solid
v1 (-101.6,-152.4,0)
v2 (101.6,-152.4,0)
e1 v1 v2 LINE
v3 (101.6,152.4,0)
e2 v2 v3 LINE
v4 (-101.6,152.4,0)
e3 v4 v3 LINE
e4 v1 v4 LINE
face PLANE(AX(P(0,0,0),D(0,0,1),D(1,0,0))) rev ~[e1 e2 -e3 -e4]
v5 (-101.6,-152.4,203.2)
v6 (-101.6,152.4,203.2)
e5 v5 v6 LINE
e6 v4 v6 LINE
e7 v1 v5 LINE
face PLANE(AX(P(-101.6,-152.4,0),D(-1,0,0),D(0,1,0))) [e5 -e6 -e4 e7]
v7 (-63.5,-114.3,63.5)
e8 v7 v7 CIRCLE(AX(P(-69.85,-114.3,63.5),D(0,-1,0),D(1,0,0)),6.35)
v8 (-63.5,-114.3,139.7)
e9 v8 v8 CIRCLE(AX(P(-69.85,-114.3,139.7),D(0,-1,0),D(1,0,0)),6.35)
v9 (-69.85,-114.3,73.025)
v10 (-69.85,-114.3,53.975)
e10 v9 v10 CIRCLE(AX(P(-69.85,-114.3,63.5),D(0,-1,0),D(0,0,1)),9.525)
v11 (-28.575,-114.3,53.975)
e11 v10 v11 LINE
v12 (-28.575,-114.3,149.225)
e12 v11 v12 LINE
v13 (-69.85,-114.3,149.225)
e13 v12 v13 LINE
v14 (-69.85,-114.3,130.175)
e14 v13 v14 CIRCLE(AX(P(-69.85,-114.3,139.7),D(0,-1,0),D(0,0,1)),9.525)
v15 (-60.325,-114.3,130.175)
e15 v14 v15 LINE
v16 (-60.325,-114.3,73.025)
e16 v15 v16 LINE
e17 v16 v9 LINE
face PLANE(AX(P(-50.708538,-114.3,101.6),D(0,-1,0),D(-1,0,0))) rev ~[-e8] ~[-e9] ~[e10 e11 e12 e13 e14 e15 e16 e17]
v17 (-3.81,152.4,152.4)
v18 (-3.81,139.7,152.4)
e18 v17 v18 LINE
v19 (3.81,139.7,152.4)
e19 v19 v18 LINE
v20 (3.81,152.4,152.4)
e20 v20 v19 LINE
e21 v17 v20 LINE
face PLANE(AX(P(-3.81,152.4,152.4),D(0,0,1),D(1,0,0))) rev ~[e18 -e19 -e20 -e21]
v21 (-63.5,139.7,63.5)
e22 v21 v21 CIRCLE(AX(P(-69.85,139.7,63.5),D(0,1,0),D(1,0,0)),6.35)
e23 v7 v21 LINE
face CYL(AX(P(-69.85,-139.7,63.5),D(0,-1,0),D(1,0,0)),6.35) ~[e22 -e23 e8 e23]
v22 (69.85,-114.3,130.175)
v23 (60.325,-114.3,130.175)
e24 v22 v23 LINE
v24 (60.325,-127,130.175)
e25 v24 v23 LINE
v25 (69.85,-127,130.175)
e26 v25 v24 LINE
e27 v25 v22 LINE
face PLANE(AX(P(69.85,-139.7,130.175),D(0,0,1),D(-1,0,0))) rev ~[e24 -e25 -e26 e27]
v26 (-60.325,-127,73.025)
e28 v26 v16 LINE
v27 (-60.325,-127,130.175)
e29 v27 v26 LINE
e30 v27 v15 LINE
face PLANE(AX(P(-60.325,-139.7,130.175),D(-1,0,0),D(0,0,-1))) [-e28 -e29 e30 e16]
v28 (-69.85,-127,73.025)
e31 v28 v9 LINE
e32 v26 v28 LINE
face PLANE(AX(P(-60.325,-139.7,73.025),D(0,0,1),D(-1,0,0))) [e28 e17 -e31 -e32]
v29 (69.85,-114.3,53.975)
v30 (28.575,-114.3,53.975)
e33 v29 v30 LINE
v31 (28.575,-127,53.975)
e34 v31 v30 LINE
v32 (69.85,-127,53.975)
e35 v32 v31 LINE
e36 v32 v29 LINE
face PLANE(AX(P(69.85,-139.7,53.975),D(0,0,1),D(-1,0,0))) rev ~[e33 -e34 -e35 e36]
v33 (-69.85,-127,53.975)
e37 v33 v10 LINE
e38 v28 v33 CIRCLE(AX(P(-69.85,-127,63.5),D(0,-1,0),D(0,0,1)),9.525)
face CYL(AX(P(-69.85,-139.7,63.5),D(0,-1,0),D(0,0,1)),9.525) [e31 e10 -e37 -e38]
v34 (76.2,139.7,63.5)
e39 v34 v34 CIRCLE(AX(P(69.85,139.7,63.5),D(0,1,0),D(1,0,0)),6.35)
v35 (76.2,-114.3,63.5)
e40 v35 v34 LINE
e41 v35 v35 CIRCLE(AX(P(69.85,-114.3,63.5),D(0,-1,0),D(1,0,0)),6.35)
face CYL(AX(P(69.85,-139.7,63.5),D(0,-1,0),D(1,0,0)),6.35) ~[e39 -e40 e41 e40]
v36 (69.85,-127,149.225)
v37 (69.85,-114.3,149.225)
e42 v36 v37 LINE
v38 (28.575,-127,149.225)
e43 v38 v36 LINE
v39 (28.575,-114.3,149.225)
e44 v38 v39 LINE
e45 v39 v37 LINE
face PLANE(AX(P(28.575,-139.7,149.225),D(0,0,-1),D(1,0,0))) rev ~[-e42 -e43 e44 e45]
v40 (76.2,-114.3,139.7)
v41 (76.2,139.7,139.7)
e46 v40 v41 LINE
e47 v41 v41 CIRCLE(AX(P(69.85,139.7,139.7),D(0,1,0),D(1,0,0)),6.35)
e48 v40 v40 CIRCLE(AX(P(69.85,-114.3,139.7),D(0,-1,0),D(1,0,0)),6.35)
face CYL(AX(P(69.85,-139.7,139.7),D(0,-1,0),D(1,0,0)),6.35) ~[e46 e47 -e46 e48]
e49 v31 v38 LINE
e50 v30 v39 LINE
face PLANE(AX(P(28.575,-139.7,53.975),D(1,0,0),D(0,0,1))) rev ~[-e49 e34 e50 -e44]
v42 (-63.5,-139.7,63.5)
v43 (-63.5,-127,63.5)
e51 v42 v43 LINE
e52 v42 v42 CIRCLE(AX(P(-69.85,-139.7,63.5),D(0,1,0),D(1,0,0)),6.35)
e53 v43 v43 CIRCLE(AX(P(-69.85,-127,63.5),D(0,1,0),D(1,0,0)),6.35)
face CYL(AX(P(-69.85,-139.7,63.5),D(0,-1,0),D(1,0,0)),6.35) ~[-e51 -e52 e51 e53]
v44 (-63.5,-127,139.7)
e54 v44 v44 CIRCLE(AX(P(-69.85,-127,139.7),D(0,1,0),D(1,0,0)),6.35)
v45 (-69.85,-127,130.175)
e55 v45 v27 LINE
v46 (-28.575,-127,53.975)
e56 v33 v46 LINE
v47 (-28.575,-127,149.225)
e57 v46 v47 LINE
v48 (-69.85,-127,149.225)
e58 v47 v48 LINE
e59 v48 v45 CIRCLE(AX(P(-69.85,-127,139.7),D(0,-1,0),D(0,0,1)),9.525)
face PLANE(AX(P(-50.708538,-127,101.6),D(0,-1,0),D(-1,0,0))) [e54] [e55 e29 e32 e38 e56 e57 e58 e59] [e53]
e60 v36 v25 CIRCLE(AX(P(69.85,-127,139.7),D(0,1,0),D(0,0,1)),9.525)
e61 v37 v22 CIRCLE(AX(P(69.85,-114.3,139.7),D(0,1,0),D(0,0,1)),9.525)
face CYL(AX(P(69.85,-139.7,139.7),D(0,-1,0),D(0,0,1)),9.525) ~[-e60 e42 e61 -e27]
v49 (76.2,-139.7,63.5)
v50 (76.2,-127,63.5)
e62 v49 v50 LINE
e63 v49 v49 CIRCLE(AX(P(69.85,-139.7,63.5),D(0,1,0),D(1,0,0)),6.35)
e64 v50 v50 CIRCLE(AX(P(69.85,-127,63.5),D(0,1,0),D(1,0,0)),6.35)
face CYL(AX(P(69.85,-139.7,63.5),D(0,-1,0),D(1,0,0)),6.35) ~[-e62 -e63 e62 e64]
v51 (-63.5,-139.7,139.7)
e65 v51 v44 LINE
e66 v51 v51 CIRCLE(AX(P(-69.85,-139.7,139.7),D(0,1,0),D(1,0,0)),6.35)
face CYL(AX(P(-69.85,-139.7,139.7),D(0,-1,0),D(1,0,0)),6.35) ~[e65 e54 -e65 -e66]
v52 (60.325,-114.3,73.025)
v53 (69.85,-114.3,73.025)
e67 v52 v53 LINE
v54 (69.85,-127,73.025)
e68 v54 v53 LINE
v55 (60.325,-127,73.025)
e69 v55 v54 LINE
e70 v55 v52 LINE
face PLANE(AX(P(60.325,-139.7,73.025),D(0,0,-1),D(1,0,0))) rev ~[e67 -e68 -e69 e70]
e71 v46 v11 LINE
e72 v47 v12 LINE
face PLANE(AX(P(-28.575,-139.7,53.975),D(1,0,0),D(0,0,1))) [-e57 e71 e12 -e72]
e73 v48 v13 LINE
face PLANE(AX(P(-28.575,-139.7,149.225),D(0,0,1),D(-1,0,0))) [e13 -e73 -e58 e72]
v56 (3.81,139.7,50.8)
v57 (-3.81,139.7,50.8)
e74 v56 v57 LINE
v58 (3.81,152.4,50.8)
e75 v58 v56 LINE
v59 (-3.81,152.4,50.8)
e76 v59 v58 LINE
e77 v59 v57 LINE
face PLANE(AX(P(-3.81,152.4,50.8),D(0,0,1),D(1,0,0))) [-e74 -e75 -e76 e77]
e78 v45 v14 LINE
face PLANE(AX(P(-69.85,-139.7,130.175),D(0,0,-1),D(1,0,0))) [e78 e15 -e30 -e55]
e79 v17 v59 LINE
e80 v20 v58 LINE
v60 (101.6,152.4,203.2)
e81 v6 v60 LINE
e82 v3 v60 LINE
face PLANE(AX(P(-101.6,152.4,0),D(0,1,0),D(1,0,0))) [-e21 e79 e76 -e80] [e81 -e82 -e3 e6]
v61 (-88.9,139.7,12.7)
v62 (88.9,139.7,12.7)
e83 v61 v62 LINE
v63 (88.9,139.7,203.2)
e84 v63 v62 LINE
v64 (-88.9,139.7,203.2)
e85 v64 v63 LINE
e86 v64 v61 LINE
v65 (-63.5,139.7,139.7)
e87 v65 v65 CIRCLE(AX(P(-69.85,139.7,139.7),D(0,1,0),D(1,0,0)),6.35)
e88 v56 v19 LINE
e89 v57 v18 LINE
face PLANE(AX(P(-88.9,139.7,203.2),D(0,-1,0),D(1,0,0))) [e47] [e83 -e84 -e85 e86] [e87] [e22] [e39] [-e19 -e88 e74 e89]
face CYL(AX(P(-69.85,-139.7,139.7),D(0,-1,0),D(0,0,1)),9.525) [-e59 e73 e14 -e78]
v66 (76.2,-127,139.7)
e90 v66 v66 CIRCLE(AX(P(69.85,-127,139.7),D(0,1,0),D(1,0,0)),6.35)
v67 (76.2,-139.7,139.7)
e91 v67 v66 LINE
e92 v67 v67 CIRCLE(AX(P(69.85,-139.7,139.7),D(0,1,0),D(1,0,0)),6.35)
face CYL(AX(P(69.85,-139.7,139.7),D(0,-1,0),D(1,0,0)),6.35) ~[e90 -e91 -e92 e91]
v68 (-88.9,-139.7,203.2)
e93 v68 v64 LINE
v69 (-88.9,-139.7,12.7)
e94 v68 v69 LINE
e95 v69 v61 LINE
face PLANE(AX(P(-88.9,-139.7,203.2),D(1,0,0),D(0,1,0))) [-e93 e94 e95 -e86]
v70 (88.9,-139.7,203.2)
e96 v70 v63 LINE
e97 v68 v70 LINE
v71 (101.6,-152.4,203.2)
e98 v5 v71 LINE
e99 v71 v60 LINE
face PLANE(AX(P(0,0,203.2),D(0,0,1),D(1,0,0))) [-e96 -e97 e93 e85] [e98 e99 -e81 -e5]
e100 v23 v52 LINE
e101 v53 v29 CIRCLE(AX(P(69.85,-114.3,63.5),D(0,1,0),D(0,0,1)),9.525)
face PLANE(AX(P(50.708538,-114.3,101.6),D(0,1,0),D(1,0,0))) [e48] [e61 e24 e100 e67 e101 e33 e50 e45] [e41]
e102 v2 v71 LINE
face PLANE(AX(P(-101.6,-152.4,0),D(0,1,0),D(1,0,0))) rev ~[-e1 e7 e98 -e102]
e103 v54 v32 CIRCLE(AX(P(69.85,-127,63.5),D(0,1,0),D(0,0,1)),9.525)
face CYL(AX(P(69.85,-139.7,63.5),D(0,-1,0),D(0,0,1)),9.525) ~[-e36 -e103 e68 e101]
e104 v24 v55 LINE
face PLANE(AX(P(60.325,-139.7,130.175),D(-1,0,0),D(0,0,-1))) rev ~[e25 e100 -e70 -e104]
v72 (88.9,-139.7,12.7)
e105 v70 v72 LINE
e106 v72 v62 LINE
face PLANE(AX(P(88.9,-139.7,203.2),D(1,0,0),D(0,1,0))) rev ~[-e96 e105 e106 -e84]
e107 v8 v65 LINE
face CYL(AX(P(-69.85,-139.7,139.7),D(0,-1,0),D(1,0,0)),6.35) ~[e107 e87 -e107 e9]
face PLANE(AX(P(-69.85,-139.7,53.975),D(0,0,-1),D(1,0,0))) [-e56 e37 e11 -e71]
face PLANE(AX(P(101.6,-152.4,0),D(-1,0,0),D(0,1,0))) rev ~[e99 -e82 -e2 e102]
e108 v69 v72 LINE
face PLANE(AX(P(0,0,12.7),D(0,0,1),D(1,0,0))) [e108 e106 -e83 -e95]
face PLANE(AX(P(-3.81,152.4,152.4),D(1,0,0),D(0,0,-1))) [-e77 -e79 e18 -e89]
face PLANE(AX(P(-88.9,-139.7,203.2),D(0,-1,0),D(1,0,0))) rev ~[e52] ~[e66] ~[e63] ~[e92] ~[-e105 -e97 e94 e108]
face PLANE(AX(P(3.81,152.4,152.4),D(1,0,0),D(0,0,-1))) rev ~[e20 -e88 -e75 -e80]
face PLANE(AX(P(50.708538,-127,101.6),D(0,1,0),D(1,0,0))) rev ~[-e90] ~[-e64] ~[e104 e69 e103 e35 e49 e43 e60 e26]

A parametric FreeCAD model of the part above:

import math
import FreeCAD as App
import Part
import Sketcher
from FreeCAD import Vector
Q = App.Units.Quantity


def add_polygon(sketch, points):
    """Adds a closed chain of lines whose ends are joined by coincident constraints."""
    first, n = sketch.GeometryCount, len(points)
    for a, b in zip(points, points[1:] + points[:1]):
        sketch.addGeometry(Part.LineSegment(App.Vector(*a, 0), App.Vector(*b, 0)), False)
    for i in range(n):
        sketch.addConstraint(Sketcher.Constraint("Coincident", first + i, 2, first + (i + 1) % n, 1))

doc = App.newDocument("Part")
body = doc.addObject("PartDesign::Body", "Body")

# Sketch on XY plane
sketch1 = body.newObject("Sketcher::SketchObject", "Sketch")
sketch1.AttachmentSupport = (doc.getObject("XY_Plane"), [""])
sketch1.MapMode = "FlatFace"
add_polygon(sketch1, [(-102, 152), (-102, -152), (102, -152), (102, 152)])  # lines 0-3
sketch1.addConstraint([
    Sketcher.Constraint("Vertical", 0),
    Sketcher.Constraint("Horizontal", 1),
    Sketcher.Constraint("Vertical", 2),
    Sketcher.Constraint("Horizontal", 3),
    Sketcher.Constraint("Symmetric", 0, 2, 2, 2, -1, 1),
    Sketcher.Constraint("DistanceX", 1, 1, 1, 2, Q("8 in")),
    Sketcher.Constraint("DistanceY", 0, 2, 0, 1, Q("12 in")),
])
pad1 = body.newObject("PartDesign::Pad", "Pad")
pad1.Profile = sketch1
pad1.Length = Q("8 in")

# Sketch on XY plane
sketch2 = body.newObject("Sketcher::SketchObject", "Sketch001")
sketch2.AttachmentSupport = (doc.getObject("XY_Plane"), [""])
sketch2.MapMode = "FlatFace"
sketch2.AttachmentOffset = App.Placement(Vector(0, 0, 8 * 25.4), App.Rotation())
add_polygon(sketch2, [(-89, 140), (-89, -140), (89, -140), (89, 140)])  # lines 0-3
sketch2.addConstraint([
    Sketcher.Constraint("Vertical", 0),
    Sketcher.Constraint("Horizontal", 1),
    Sketcher.Constraint("Vertical", 2),
    Sketcher.Constraint("Horizontal", 3),
    Sketcher.Constraint("Symmetric", 0, 2, 2, 2, -1, 1),
    Sketcher.Constraint("DistanceX", 1, 1, 1, 2, Q("7 in")),
    Sketcher.Constraint("DistanceY", 0, 2, 0, 1, Q("11 in")),
])
pocket1 = body.newObject("PartDesign::Pocket", "Pocket")
pocket1.Profile = sketch2
pocket1.Length = Q("7.5 in")

# Sketch on XZ plane
sketch3 = body.newObject("Sketcher::SketchObject", "Sketch002")
sketch3.AttachmentSupport = (doc.getObject("XZ_Plane"), [""])
sketch3.MapMode = "FlatFace"
sketch3.AttachmentOffset = App.Placement(Vector(0, 0, -6 * 25.4), App.Rotation())
add_polygon(sketch3, [(-4, 51), (-4, 152), (4, 152), (4, 51)])  # lines 0-3
sketch3.addConstraint([
    Sketcher.Constraint("Vertical", 0),
    Sketcher.Constraint("Horizontal", 1),
    Sketcher.Constraint("Vertical", 2),
    Sketcher.Constraint("Horizontal", 3),
    Sketcher.Constraint("DistanceY", 0, 1, 0, 2, Q("4 in")),
    Sketcher.Constraint("DistanceX", 1, 1, 1, 2, Q("0.3 in")),
    Sketcher.Constraint("DistanceY", -1, 1, 0, 2, Q("6 in")),
    Sketcher.Constraint("DistanceX", 0, 2, -1, 1, Q("0.15 in")),
])
pocket2 = body.newObject("PartDesign::Pocket", "Pocket001")
pocket2.Profile = sketch3
pocket2.Length = Q("7.5 in")
pocket2.Reversed = True

# Sketch on XZ plane
sketch4 = body.newObject("Sketcher::SketchObject", "Sketch003")
sketch4.AttachmentSupport = (doc.getObject("XZ_Plane"), [""])
sketch4.MapMode = "FlatFace"
sketch4.AttachmentOffset = App.Placement(Vector(0, 0, 5.5 * 25.4), App.Rotation())
sketch4.addGeometry([
    Part.Circle(Vector(-70, 64, 0), Vector(0, 0, 1), 6),
    Part.Circle(Vector(70, 64, 0), Vector(0, 0, 1), 6),
    Part.Circle(Vector(70, 140, 0), Vector(0, 0, 1), 6),
    Part.Circle(Vector(-70, 140, 0), Vector(0, 0, 1), 6),
], False)
sketch4.addConstraint([
    Sketcher.Constraint("Equal", 0, 1),
    Sketcher.Constraint("Equal", 1, 2),
    Sketcher.Constraint("Equal", 2, 3),
    Sketcher.Constraint("Symmetric", 0, 3, 1, 3, -2),
    Sketcher.Constraint("Symmetric", 2, 3, 3, 3, -2),
    Sketcher.Constraint("Vertical", 1, 3, 2, 3),
    Sketcher.Constraint("Diameter", 0, Q("0.5 in")),
    Sketcher.Constraint("DistanceY", 1, 3, 2, 3, Q("3 in")),
    Sketcher.Constraint("DistanceY", -1, 1, 0, 3, Q("2.5 in")),
    Sketcher.Constraint("DistanceX", 0, 3, 1, 3, Q("5.5 in")),
])
pad2 = body.newObject("PartDesign::Pad", "Pad001")
pad2.Profile = sketch4
pad2.Length = Q("11 in")
pad2.Reversed = True

# Sketch on XZ plane
sketch5 = body.newObject("Sketcher::SketchObject", "Sketch004")
sketch5.AttachmentSupport = (doc.getObject("XZ_Plane"), [""])
sketch5.MapMode = "FlatFace"
sketch5.AttachmentOffset = App.Placement(Vector(0, 0, 5.5 * 25.4), App.Rotation())
sketch5.addGeometry([
    Part.LineSegment(Vector(-29, 54, 0), Vector(-70, 54, 0)),  # 0
    Part.ArcOfCircle(Part.Circle(Vector(-70, 64, 0), Vector(0, 0, 1), 10), math.radians(90), math.radians(270)),  # 1
    Part.LineSegment(Vector(-70, 73, 0), Vector(-60, 73, 0)),  # 2
    Part.LineSegment(Vector(-60, 73, 0), Vector(-60, 130, 0)),  # 3
    Part.LineSegment(Vector(-60, 130, 0), Vector(-70, 130, 0)),  # 4
    Part.ArcOfCircle(Part.Circle(Vector(-70, 140, 0), Vector(0, 0, 1), 10), math.radians(90), math.radians(270)),  # 5
    Part.LineSegment(Vector(-70, 149, 0), Vector(-29, 149, 0)),  # 6
    Part.LineSegment(Vector(-29, 149, 0), Vector(-29, 54, 0)),  # 7
    Part.LineSegment(Vector(29, 54, 0), Vector(29, 149, 0)),  # 8
    Part.LineSegment(Vector(29, 149, 0), Vector(70, 149, 0)),  # 9
    Part.ArcOfCircle(Part.Circle(Vector(70, 140, 0), Vector(0, 0, 1), 10), math.radians(-90), math.radians(90)),  # 10
    Part.LineSegment(Vector(70, 130, 0), Vector(60, 130, 0)),  # 11
    Part.LineSegment(Vector(60, 130, 0), Vector(60, 73, 0)),  # 12
    Part.LineSegment(Vector(60, 73, 0), Vector(70, 73, 0)),  # 13
    Part.ArcOfCircle(Part.Circle(Vector(70, 64, 0), Vector(0, 0, 1), 10), math.radians(-90), math.radians(90)),  # 14
    Part.LineSegment(Vector(70, 54, 0), Vector(29, 54, 0)),  # 15
], False)
sketch5.addConstraint([
    Sketcher.Constraint("Tangent", 0, 2, 1, 2),
    Sketcher.Constraint("Tangent", 1, 1, 2, 1),
    Sketcher.Constraint("Coincident", 2, 2, 3, 1),
    Sketcher.Constraint("Coincident", 3, 2, 4, 1),
    Sketcher.Constraint("Tangent", 4, 2, 5, 2),
    Sketcher.Constraint("Tangent", 5, 1, 6, 1),
    Sketcher.Constraint("Coincident", 6, 2, 7, 1),
    Sketcher.Constraint("Coincident", 7, 2, 0, 1),
    Sketcher.Constraint("Coincident", 8, 2, 9, 1),
    Sketcher.Constraint("Tangent", 9, 2, 10, 2),
    Sketcher.Constraint("Tangent", 10, 1, 11, 1),
    Sketcher.Constraint("Coincident", 11, 2, 12, 1),
    Sketcher.Constraint("Coincident", 12, 2, 13, 1),
    Sketcher.Constraint("Tangent", 13, 2, 14, 2),
    Sketcher.Constraint("Tangent", 14, 1, 15, 1),
    Sketcher.Constraint("Coincident", 15, 2, 8, 1),
    Sketcher.Constraint("Horizontal", 0),
    Sketcher.Constraint("Horizontal", 2),
    Sketcher.Constraint("Vertical", 3),
    Sketcher.Constraint("Horizontal", 4),
    Sketcher.Constraint("Horizontal", 6),
    Sketcher.Constraint("Vertical", 7),
    Sketcher.Constraint("Vertical", 8),
    Sketcher.Constraint("Horizontal", 9),
    Sketcher.Constraint("Horizontal", 11),
    Sketcher.Constraint("Vertical", 12),
    Sketcher.Constraint("Horizontal", 13),
    Sketcher.Constraint("Horizontal", 15),
    Sketcher.Constraint("Equal", 1, 5),
    Sketcher.Constraint("Equal", 5, 10),
    Sketcher.Constraint("Equal", 10, 14),
    Sketcher.Constraint("Symmetric", 5, 3, 10, 3, -2),
    Sketcher.Constraint("Symmetric", 1, 3, 14, 3, -2),
    Sketcher.Constraint("Vertical", 1, 3, 5, 3),
    Sketcher.Constraint("Equal", 6, 9),
    Sketcher.Constraint("Equal", 4, 11),
    Sketcher.Constraint("Radius", 1, Q("0.375 in")),
    Sketcher.Constraint("DistanceY", 1, 3, 5, 3, Q("3 in")),
    Sketcher.Constraint("DistanceY", -1, 1, 1, 3, Q("2.5 in")),
    Sketcher.Constraint("DistanceX", 5, 3, 10, 3, Q("5.5 in")),
    Sketcher.Constraint("DistanceX", 3, 2, 8, 2, Q("3.5 in")),
    Sketcher.Constraint("DistanceX", 0, 2, 0, 1, Q("1.625 in")),
])
pad3 = body.newObject("PartDesign::Pad", "Pad002")
pad3.Profile = sketch5
pad3.Length = Q("1 in")
pad3.Reversed = True

# Sketch on XZ plane
sketch6 = body.newObject("Sketcher::SketchObject", "Sketch005")
sketch6.AttachmentSupport = (doc.getObject("XZ_Plane"), [""])
sketch6.MapMode = "FlatFace"
sketch6.AttachmentOffset = App.Placement(Vector(0, 0, 5.5 * 25.4), App.Rotation())
sketch6.addGeometry([
    Part.LineSegment(Vector(-29, 54, 0), Vector(-70, 54, 0)),  # 0
    Part.ArcOfCircle(Part.Circle(Vector(-70, 64, 0), Vector(0, 0, 1), 10), math.radians(90), math.radians(270)),  # 1
    Part.LineSegment(Vector(-70, 73, 0), Vector(-60, 73, 0)),  # 2
    Part.LineSegment(Vector(-60, 73, 0), Vector(-60, 130, 0)),  # 3
    Part.LineSegment(Vector(-60, 130, 0), Vector(-70, 130, 0)),  # 4
    Part.ArcOfCircle(Part.Circle(Vector(-70, 140, 0), Vector(0, 0, 1), 10), math.radians(90), math.radians(270)),  # 5
    Part.LineSegment(Vector(-70, 149, 0), Vector(-29, 149, 0)),  # 6
    Part.LineSegment(Vector(-29, 149, 0), Vector(-29, 54, 0)),  # 7
    Part.LineSegment(Vector(29, 54, 0), Vector(29, 149, 0)),  # 8
    Part.LineSegment(Vector(29, 149, 0), Vector(70, 149, 0)),  # 9
    Part.ArcOfCircle(Part.Circle(Vector(70, 140, 0), Vector(0, 0, 1), 10), math.radians(-90), math.radians(90)),  # 10
    Part.LineSegment(Vector(70, 130, 0), Vector(60, 130, 0)),  # 11
    Part.LineSegment(Vector(60, 130, 0), Vector(60, 73, 0)),  # 12
    Part.LineSegment(Vector(60, 73, 0), Vector(70, 73, 0)),  # 13
    Part.ArcOfCircle(Part.Circle(Vector(70, 64, 0), Vector(0, 0, 1), 10), math.radians(-90), math.radians(90)),  # 14
    Part.LineSegment(Vector(70, 54, 0), Vector(29, 54, 0)),  # 15
], False)
sketch6.addConstraint([
    Sketcher.Constraint("Tangent", 0, 2, 1, 2),
    Sketcher.Constraint("Tangent", 1, 1, 2, 1),
    Sketcher.Constraint("Coincident", 2, 2, 3, 1),
    Sketcher.Constraint("Coincident", 3, 2, 4, 1),
    Sketcher.Constraint("Tangent", 4, 2, 5, 2),
    Sketcher.Constraint("Tangent", 5, 1, 6, 1),
    Sketcher.Constraint("Coincident", 6, 2, 7, 1),
    Sketcher.Constraint("Coincident", 7, 2, 0, 1),
    Sketcher.Constraint("Coincident", 8, 2, 9, 1),
    Sketcher.Constraint("Tangent", 9, 2, 10, 2),
    Sketcher.Constraint("Tangent", 10, 1, 11, 1),
    Sketcher.Constraint("Coincident", 11, 2, 12, 1),
    Sketcher.Constraint("Coincident", 12, 2, 13, 1),
    Sketcher.Constraint("Tangent", 13, 2, 14, 2),
    Sketcher.Constraint("Tangent", 14, 1, 15, 1),
    Sketcher.Constraint("Coincident", 15, 2, 8, 1),
    Sketcher.Constraint("Horizontal", 0),
    Sketcher.Constraint("Horizontal", 2),
    Sketcher.Constraint("Vertical", 3),
    Sketcher.Constraint("Horizontal", 4),
    Sketcher.Constraint("Horizontal", 6),
    Sketcher.Constraint("Vertical", 7),
    Sketcher.Constraint("Vertical", 8),
    Sketcher.Constraint("Horizontal", 9),
    Sketcher.Constraint("Horizontal", 11),
    Sketcher.Constraint("Vertical", 12),
    Sketcher.Constraint("Horizontal", 13),
    Sketcher.Constraint("Horizontal", 15),
    Sketcher.Constraint("Equal", 1, 5),
    Sketcher.Constraint("Equal", 5, 10),
    Sketcher.Constraint("Equal", 10, 14),
    Sketcher.Constraint("Symmetric", 5, 3, 10, 3, -2),
    Sketcher.Constraint("Symmetric", 1, 3, 14, 3, -2),
    Sketcher.Constraint("Vertical", 1, 3, 5, 3),
    Sketcher.Constraint("Equal", 6, 9),
    Sketcher.Constraint("Equal", 4, 11),
    Sketcher.Constraint("Radius", 1, Q("0.375 in")),
    Sketcher.Constraint("DistanceY", 1, 3, 5, 3, Q("3 in")),
    Sketcher.Constraint("DistanceY", -1, 1, 1, 3, Q("2.5 in")),
    Sketcher.Constraint("DistanceX", 5, 3, 10, 3, Q("5.5 in")),
    Sketcher.Constraint("DistanceX", 3, 2, 8, 2, Q("3.5 in")),
    Sketcher.Constraint("DistanceX", 0, 2, 0, 1, Q("1.625 in")),
])
pocket3 = body.newObject("PartDesign::Pocket", "Pocket002")
pocket3.Profile = sketch6
pocket3.Length = Q("0.5 in")

# Sketch on XZ plane
sketch7 = body.newObject("Sketcher::SketchObject", "Sketch006")
sketch7.AttachmentSupport = (doc.getObject("XZ_Plane"), [""])
sketch7.MapMode = "FlatFace"
sketch7.AttachmentOffset = App.Placement(Vector(0, 0, 5.5 * 25.4), App.Rotation())
sketch7.addGeometry([
    Part.Circle(Vector(-70, 64, 0), Vector(0, 0, 1), 6),
    Part.Circle(Vector(70, 64, 0), Vector(0, 0, 1), 6),
    Part.Circle(Vector(70, 140, 0), Vector(0, 0, 1), 6),
    Part.Circle(Vector(-70, 140, 0), Vector(0, 0, 1), 6),
], False)
sketch7.addConstraint([
    Sketcher.Constraint("Equal", 0, 1),
    Sketcher.Constraint("Equal", 1, 2),
    Sketcher.Constraint("Equal", 2, 3),
    Sketcher.Constraint("Symmetric", 0, 3, 1, 3, -2),
    Sketcher.Constraint("Symmetric", 2, 3, 3, 3, -2),
    Sketcher.Constraint("Vertical", 1, 3, 2, 3),
    Sketcher.Constraint("Diameter", 0, Q("0.5 in")),
    Sketcher.Constraint("DistanceY", 1, 3, 2, 3, Q("3 in")),
    Sketcher.Constraint("DistanceY", -1, 1, 0, 3, Q("2.5 in")),
    Sketcher.Constraint("DistanceX", 0, 3, 1, 3, Q("5.5 in")),
])
pad4 = body.newObject("PartDesign::Pad", "Pad003")
pad4.Profile = sketch7
pad4.Length = Q("0.5 in")
pad4.Reversed = True

doc.recompute()
